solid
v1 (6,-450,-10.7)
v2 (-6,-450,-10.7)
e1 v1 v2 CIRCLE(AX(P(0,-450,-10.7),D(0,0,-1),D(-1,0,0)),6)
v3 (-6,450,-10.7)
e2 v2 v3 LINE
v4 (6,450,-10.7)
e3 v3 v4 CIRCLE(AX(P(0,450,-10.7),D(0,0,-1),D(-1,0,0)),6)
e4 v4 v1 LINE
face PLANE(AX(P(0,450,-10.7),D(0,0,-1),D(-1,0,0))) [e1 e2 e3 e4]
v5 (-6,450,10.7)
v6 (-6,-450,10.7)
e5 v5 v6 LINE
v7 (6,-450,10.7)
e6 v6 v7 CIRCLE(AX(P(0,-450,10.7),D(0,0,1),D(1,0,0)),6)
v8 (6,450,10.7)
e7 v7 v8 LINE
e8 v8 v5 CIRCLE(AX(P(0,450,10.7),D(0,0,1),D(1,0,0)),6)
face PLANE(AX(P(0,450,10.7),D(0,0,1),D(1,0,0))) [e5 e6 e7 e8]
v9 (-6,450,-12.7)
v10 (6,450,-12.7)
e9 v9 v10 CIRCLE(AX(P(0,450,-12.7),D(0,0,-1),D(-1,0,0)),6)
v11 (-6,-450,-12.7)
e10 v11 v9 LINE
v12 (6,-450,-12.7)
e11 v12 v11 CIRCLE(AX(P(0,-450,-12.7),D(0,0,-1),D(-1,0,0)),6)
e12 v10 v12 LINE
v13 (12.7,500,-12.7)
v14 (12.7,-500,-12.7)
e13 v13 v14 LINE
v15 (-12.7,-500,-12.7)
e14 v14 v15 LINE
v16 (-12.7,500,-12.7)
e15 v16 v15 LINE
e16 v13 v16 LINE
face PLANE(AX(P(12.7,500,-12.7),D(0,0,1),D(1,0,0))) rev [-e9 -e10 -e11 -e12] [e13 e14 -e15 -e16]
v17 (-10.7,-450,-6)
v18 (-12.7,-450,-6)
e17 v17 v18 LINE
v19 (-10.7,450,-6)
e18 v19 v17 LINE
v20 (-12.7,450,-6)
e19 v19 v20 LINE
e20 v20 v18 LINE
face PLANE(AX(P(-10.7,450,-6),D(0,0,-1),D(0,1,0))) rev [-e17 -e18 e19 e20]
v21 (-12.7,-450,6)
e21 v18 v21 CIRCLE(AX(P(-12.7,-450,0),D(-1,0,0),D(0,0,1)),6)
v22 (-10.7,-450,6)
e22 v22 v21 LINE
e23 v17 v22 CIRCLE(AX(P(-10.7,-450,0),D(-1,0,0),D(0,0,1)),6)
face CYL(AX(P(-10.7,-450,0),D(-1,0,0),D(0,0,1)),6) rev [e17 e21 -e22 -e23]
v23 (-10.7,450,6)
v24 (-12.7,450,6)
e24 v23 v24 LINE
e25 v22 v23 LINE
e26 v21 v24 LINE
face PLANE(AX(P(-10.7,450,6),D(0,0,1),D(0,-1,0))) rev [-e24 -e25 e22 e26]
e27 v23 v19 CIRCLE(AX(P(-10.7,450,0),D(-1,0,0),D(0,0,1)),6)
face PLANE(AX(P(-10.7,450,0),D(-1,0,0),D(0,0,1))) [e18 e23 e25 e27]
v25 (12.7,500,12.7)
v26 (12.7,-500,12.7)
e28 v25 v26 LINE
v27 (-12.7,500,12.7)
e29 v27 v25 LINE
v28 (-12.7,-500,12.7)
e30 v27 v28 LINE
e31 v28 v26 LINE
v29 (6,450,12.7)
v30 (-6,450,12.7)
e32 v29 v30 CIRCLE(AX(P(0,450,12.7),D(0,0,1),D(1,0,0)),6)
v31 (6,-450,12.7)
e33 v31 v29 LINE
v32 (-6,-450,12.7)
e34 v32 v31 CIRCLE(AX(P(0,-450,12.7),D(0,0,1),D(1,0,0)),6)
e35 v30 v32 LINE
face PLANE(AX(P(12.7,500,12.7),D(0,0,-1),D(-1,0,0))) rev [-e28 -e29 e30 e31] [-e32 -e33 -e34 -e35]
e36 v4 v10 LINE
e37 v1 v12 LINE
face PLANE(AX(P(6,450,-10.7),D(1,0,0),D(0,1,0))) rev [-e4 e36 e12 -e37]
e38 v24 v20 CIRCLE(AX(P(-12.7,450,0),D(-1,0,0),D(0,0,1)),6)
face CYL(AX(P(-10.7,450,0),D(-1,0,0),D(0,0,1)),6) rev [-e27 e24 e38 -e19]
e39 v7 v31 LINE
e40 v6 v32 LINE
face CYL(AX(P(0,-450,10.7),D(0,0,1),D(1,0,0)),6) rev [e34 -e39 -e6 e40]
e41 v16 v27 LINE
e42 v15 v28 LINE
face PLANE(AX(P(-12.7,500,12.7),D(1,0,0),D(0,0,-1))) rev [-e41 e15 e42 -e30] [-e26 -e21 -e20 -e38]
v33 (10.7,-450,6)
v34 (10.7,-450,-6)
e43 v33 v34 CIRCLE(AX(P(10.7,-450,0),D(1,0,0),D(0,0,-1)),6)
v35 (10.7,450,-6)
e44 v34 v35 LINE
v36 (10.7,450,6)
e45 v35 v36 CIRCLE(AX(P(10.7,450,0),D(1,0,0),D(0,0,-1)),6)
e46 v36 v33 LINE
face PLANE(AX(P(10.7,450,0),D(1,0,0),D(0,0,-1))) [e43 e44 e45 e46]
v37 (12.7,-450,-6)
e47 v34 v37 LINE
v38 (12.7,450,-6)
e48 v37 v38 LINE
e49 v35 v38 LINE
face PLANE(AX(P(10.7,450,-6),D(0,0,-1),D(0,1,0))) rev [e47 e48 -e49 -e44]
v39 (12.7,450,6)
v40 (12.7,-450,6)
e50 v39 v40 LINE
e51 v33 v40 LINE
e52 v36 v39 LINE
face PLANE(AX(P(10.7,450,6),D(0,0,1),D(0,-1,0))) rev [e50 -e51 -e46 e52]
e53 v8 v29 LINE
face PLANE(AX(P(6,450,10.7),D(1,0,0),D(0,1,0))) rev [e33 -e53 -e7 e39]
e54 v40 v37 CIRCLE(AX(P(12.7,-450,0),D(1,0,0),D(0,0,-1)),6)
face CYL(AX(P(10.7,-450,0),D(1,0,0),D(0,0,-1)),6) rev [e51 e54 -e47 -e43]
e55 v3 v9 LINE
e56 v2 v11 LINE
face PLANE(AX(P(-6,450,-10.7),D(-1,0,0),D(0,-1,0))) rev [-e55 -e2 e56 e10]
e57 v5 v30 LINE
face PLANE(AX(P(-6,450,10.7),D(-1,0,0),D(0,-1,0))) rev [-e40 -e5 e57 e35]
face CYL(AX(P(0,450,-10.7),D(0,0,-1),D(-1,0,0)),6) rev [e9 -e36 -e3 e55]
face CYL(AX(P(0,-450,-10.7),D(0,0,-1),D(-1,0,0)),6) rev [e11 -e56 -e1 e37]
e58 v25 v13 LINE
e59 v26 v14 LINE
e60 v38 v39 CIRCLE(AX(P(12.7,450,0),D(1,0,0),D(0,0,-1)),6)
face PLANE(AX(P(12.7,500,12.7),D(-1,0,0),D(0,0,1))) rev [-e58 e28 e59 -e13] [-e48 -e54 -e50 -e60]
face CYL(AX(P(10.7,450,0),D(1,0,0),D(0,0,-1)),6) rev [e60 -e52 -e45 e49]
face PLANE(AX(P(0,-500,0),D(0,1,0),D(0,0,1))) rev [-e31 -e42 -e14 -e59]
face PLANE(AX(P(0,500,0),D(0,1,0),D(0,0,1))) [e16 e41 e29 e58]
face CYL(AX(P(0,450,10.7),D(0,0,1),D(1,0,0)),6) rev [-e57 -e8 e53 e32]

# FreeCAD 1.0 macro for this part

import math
import FreeCAD as App
import Part
import Sketcher

V = App.Vector
Q = App.Units.Quantity


def add_polygon(sketch, points):
    """Adds a closed chain of lines whose ends are joined by coincident constraints."""
    first, n = sketch.GeometryCount, len(points)
    for a, b in zip(points, points[1:] + points[:1]):
        sketch.addGeometry(Part.LineSegment(App.Vector(*a, 0), App.Vector(*b, 0)), False)
    for i in range(n):
        sketch.addConstraint(Sketcher.Constraint("Coincident", first + i, 2, first + (i + 1) % n, 1))

doc = App.newDocument("Part")
params = doc.addObject("Spreadsheet::Sheet", "Params")
for row, (alias, value) in enumerate([
    ("sketch1_width", "25.4 mm"),
    ("pad1_length", "1000 mm"),
    ("sketch2_radius", "6 mm"),
    ("sketch2_height", "900 mm"),
    ("pocket1_length", "2 mm"),
    ("sketch3_radius", "6 mm"),
    ("sketch3_width", "900 mm"),
    ("pocket2_length", "2 mm"),
    ("sketch4_radius", "6 mm"),
    ("sketch4_height", "900 mm"),
    ("pocket3_length", "2 mm"),
    ("sketch5_radius", "6 mm"),
    ("sketch5_width", "900 mm"),
    ("pocket4_length", "2 mm"),
], start=1):
    params.set(f"A{row}", alias)
    params.set(f"B{row}", "=" + value)
    params.setAlias(f"B{row}", alias)

body = doc.addObject("PartDesign::Body", "Body")

# Sketch on XZ plane
sketch1 = doc.addObject("Sketcher::SketchObject", "Sketch")
body.addObject(sketch1)
sketch1.AttachmentSupport = (doc.XZ_Plane, [""])
sketch1.MapMode = "FlatFace"
add_polygon(sketch1, [(-12.7, -12.7), (-12.7, 12.7), (12.7, 12.7), (12.7, -12.7)])  # lines 0-3
sketch1.addConstraint(Sketcher.Constraint("Vertical", 0))
sketch1.addConstraint(Sketcher.Constraint("Horizontal", 1))
sketch1.addConstraint(Sketcher.Constraint("Vertical", 2))
sketch1.addConstraint(Sketcher.Constraint("Horizontal", 3))
sketch1.addConstraint(Sketcher.Constraint("Symmetric", 0, 2, 2, 2, -1, 1))
sketch1.addConstraint(Sketcher.Constraint("Equal", 3, 0))
sketch1.addConstraint(Sketcher.Constraint("DistanceX", 1, 1, 1, 2, Q("25.4 mm")))
sketch1.setExpression("Constraints[10]", "Params.sketch1_width")
pad1 = doc.addObject("PartDesign::Pad", "Pad")
body.addObject(pad1)
pad1.Profile = sketch1
pad1.setExpression("Length", "Params.pad1_length")
pad1.Midplane = True

# Sketch on XY plane
sketch2 = doc.addObject("Sketcher::SketchObject", "Sketch001")
body.addObject(sketch2)
sketch2.AttachmentSupport = (doc.XY_Plane, [""])
sketch2.MapMode = "FlatFace"
sketch2.AttachmentOffset = App.Placement(V(0, 0, 12.7), App.Rotation())
sketch2.addGeometry(Part.LineSegment(V(6, -450, 0), V(6, 450, 0)), False)
sketch2.addGeometry(Part.ArcOfCircle(Part.Circle(V(0, 450, 0), V(0, 0, 1), 6), math.radians(0), math.radians(180)), False)
sketch2.addGeometry(Part.LineSegment(V(-6, 450, 0), V(-6, -450, 0)), False)
sketch2.addGeometry(Part.ArcOfCircle(Part.Circle(V(0, -450, 0), V(0, 0, 1), 6), math.radians(180), math.radians(360)), False)
sketch2.addConstraint(Sketcher.Constraint("Tangent", 0, 2, 1, 1))
sketch2.addConstraint(Sketcher.Constraint("Tangent", 1, 2, 2, 1))
sketch2.addConstraint(Sketcher.Constraint("Tangent", 2, 2, 3, 1))
sketch2.addConstraint(Sketcher.Constraint("Tangent", 3, 2, 0, 1))
sketch2.addConstraint(Sketcher.Constraint("Vertical", 0))
sketch2.addConstraint(Sketcher.Constraint("Vertical", 2))
sketch2.addConstraint(Sketcher.Constraint("Symmetric", 1, 3, 3, 3, -1, 1))
sketch2.addConstraint(Sketcher.Constraint("Radius", 1, Q("6 mm")))
sketch2.addConstraint(Sketcher.Constraint("DistanceY", 0, 1, 0, 2, Q("900 mm")))
sketch2.setExpression("Constraints[7]", "Params.sketch2_radius")
sketch2.setExpression("Constraints[8]", "Params.sketch2_height")
pocket1 = doc.addObject("PartDesign::Pocket", "Pocket")
body.addObject(pocket1)
pocket1.Profile = sketch2
pocket1.setExpression("Length", "Params.pocket1_length")

# Sketch on YZ plane
sketch3 = doc.addObject("Sketcher::SketchObject", "Sketch002")
body.addObject(sketch3)
sketch3.AttachmentSupport = (doc.YZ_Plane, [""])
sketch3.MapMode = "FlatFace"
sketch3.AttachmentOffset = App.Placement(V(0, 0, 12.7), App.Rotation())
sketch3.addGeometry(Part.LineSegment(V(-450, -6, 0), V(450, -6, 0)), False)
sketch3.addGeometry(Part.ArcOfCircle(Part.Circle(V(450, 0, 0), V(0, 0, 1), 6), math.radians(-90), math.radians(90)), False)
sketch3.addGeometry(Part.LineSegment(V(450, 6, 0), V(-450, 6, 0)), False)
sketch3.addGeometry(Part.ArcOfCircle(Part.Circle(V(-450, 0, 0), V(0, 0, 1), 6), math.radians(90), math.radians(270)), False)
sketch3.addConstraint(Sketcher.Constraint("Tangent", 0, 2, 1, 1))
sketch3.addConstraint(Sketcher.Constraint("Tangent", 1, 2, 2, 1))
sketch3.addConstraint(Sketcher.Constraint("Tangent", 2, 2, 3, 1))
sketch3.addConstraint(Sketcher.Constraint("Tangent", 3, 2, 0, 1))
sketch3.addConstraint(Sketcher.Constraint("Horizontal", 0))
sketch3.addConstraint(Sketcher.Constraint("Horizontal", 2))
sketch3.addConstraint(Sketcher.Constraint("Symmetric", 1, 3, 3, 3, -1, 1))
sketch3.addConstraint(Sketcher.Constraint("Radius", 1, Q("6 mm")))
sketch3.addConstraint(Sketcher.Constraint("DistanceX", 0, 1, 0, 2, Q("900 mm")))
sketch3.setExpression("Constraints[7]", "Params.sketch3_radius")
sketch3.setExpression("Constraints[8]", "Params.sketch3_width")
pocket2 = doc.addObject("PartDesign::Pocket", "Pocket001")
body.addObject(pocket2)
pocket2.Profile = sketch3
pocket2.setExpression("Length", "Params.pocket2_length")

# Sketch on XY plane
sketch4 = doc.addObject("Sketcher::SketchObject", "Sketch003")
body.addObject(sketch4)
sketch4.AttachmentSupport = (doc.XY_Plane, [""])
sketch4.MapMode = "FlatFace"
sketch4.AttachmentOffset = App.Placement(V(0, 0, -10.7), App.Rotation())
sketch4.addGeometry(Part.LineSegment(V(-6, -450, 0), V(-6, 450, 0)), False)
sketch4.addGeometry(Part.ArcOfCircle(Part.Circle(V(0, 450, 0), V(0, 0, 1), 6), math.radians(0), math.radians(180)), False)
sketch4.addGeometry(Part.LineSegment(V(6, 450, 0), V(6, -450, 0)), False)
sketch4.addGeometry(Part.ArcOfCircle(Part.Circle(V(0, -450, 0), V(0, 0, 1), 6), math.radians(180), math.radians(360)), False)
sketch4.addConstraint(Sketcher.Constraint("Tangent", 0, 2, 1, 2))
sketch4.addConstraint(Sketcher.Constraint("Tangent", 1, 1, 2, 1))
sketch4.addConstraint(Sketcher.Constraint("Tangent", 2, 2, 3, 2))
sketch4.addConstraint(Sketcher.Constraint("Tangent", 3, 1, 0, 1))
sketch4.addConstraint(Sketcher.Constraint("Vertical", 0))
sketch4.addConstraint(Sketcher.Constraint("Vertical", 2))
sketch4.addConstraint(Sketcher.Constraint("Symmetric", 1, 3, 3, 3, -1, 1))
sketch4.addConstraint(Sketcher.Constraint("Radius", 1, Q("6 mm")))
sketch4.addConstraint(Sketcher.Constraint("DistanceY", 0, 1, 0, 2, Q("900 mm")))
sketch4.setExpression("Constraints[7]", "Params.sketch4_radius")
sketch4.setExpression("Constraints[8]", "Params.sketch4_height")
pocket3 = doc.addObject("PartDesign::Pocket", "Pocket002")
body.addObject(pocket3)
pocket3.Profile = sketch4
pocket3.setExpression("Length", "Params.pocket3_length")

# Sketch on YZ plane
sketch5 = doc.addObject("Sketcher::SketchObject", "Sketch004")
body.addObject(sketch5)
sketch5.AttachmentSupport = (doc.YZ_Plane, [""])
sketch5.MapMode = "FlatFace"
sketch5.AttachmentOffset = App.Placement(V(0, 0, -10.7), App.Rotation())
sketch5.addGeometry(Part.LineSegment(V(-450, 6, 0), V(450, 6, 0)), False)
sketch5.addGeometry(Part.ArcOfCircle(Part.Circle(V(450, 0, 0), V(0, 0, 1), 6), math.radians(-90), math.radians(90)), False)
sketch5.addGeometry(Part.LineSegment(V(450, -6, 0), V(-450, -6, 0)), False)
sketch5.addGeometry(Part.ArcOfCircle(Part.Circle(V(-450, 0, 0), V(0, 0, 1), 6), math.radians(90), math.radians(270)), False)
sketch5.addConstraint(Sketcher.Constraint("Tangent", 0, 2, 1, 2))
sketch5.addConstraint(Sketcher.Constraint("Tangent", 1, 1, 2, 1))
sketch5.addConstraint(Sketcher.Constraint("Tangent", 2, 2, 3, 2))
sketch5.addConstraint(Sketcher.Constraint("Tangent", 3, 1, 0, 1))
sketch5.addConstraint(Sketcher.Constraint("Horizontal", 0))
sketch5.addConstraint(Sketcher.Constraint("Horizontal", 2))
sketch5.addConstraint(Sketcher.Constraint("Symmetric", 1, 3, 3, 3, -1, 1))
sketch5.addConstraint(Sketcher.Constraint("Radius", 1, Q("6 mm")))
sketch5.addConstraint(Sketcher.Constraint("DistanceX", 0, 1, 0, 2, Q("900 mm")))
sketch5.setExpression("Constraints[7]", "Params.sketch5_radius")
sketch5.setExpression("Constraints[8]", "Params.sketch5_width")
pocket4 = doc.addObject("PartDesign::Pocket", "Pocket003")
body.addObject(pocket4)
pocket4.Profile = sketch5
pocket4.setExpression("Length", "Params.pocket4_length")

doc.recompute()
